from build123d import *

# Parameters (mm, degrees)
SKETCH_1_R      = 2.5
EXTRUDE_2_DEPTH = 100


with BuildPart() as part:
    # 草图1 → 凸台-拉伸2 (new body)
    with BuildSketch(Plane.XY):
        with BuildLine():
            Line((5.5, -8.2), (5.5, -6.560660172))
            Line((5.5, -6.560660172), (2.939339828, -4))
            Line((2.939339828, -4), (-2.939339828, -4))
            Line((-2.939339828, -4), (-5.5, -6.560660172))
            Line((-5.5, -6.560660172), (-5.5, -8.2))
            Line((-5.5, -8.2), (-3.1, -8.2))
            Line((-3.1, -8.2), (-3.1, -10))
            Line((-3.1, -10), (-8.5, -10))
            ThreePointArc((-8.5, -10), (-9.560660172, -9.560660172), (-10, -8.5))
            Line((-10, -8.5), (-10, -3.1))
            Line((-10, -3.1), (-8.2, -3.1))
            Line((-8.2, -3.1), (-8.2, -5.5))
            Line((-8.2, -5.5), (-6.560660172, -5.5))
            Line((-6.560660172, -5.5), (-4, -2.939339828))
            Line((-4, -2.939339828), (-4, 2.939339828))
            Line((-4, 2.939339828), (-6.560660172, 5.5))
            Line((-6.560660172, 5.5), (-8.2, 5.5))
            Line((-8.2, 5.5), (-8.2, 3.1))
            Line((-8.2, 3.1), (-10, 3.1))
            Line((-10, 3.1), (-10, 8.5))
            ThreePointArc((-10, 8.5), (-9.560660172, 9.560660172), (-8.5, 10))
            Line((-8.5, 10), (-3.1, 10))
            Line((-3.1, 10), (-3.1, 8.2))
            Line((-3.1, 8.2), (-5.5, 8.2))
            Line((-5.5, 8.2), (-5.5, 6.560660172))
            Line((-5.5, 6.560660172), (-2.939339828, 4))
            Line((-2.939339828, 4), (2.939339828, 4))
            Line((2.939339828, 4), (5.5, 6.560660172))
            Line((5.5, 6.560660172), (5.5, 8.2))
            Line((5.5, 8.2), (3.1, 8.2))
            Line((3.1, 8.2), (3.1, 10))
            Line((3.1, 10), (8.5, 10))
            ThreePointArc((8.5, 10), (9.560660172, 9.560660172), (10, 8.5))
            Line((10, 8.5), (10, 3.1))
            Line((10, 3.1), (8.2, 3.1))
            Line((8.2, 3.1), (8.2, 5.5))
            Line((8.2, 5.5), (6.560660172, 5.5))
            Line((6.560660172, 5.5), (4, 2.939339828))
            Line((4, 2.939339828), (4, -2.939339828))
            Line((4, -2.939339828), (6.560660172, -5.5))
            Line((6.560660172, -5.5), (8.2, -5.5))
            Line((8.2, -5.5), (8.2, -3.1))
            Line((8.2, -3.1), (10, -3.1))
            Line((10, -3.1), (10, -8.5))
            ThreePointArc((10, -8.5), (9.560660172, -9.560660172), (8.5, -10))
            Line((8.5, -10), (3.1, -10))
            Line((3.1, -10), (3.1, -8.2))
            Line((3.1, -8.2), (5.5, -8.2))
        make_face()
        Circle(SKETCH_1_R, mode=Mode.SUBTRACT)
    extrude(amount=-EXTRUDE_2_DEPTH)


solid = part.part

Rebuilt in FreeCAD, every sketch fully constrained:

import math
import FreeCAD as App
import Part
import Sketcher

V = App.Vector

doc = App.newDocument("Part")
body = doc.addObject("PartDesign::Body", "Body")

sketch1 = body.newObject("Sketcher::SketchObject", "Sketch")
sketch1.AttachmentSupport = (doc.getObject("XY_Plane"), [""])
sketch1.MapMode = "FlatFace"
sketch1.addGeometry([
    Part.LineSegment(V(5.5, -6.6, 0), V(5.5, -8.2, 0)),
    Part.LineSegment(V(5.5, -8.2, 0), V(3.1, -8.2, 0)),
    Part.LineSegment(V(3.1, -8.2, 0), V(3.1, -10, 0)),
    Part.LineSegment(V(3.1, -10, 0), V(8.5, -10, 0)),
    Part.ArcOfCircle(Part.Circle(V(8.5, -8.5, 0), V(0, 0, 1), 1.5), math.radians(-90), math.radians(0)),
    Part.LineSegment(V(10, -8.5, 0), V(10, -3.1, 0)),
    Part.LineSegment(V(10, -3.1, 0), V(8.2, -3.1, 0)),
    Part.LineSegment(V(8.2, -3.1, 0), V(8.2, -5.5, 0)),
    Part.LineSegment(V(8.2, -5.5, 0), V(6.6, -5.5, 0)),
    Part.LineSegment(V(6.6, -5.5, 0), V(4, -2.9, 0)),
    Part.LineSegment(V(4, -2.9, 0), V(4, 2.9, 0)),
    Part.LineSegment(V(4, 2.9, 0), V(6.6, 5.5, 0)),
    Part.LineSegment(V(6.6, 5.5, 0), V(8.2, 5.5, 0)),
    Part.LineSegment(V(8.2, 5.5, 0), V(8.2, 3.1, 0)),
    Part.LineSegment(V(8.2, 3.1, 0), V(10, 3.1, 0)),
    Part.LineSegment(V(10, 3.1, 0), V(10, 8.5, 0)),
    Part.ArcOfCircle(Part.Circle(V(8.5, 8.5, 0), V(0, 0, 1), 1.5), math.radians(0), math.radians(90)),
    Part.LineSegment(V(8.5, 10, 0), V(3.1, 10, 0)),
    Part.LineSegment(V(3.1, 10, 0), V(3.1, 8.2, 0)),
    Part.LineSegment(V(3.1, 8.2, 0), V(5.5, 8.2, 0)),
    Part.LineSegment(V(5.5, 8.2, 0), V(5.5, 6.6, 0)),
    Part.LineSegment(V(5.5, 6.6, 0), V(2.9, 4, 0)),
    Part.LineSegment(V(2.9, 4, 0), V(-2.9, 4, 0)),
    Part.LineSegment(V(-2.9, 4, 0), V(-5.5, 6.6, 0)),
    Part.LineSegment(V(-5.5, 6.6, 0), V(-5.5, 8.2, 0)),
    Part.LineSegment(V(-5.5, 8.2, 0), V(-3.1, 8.2, 0)),
    Part.LineSegment(V(-3.1, 8.2, 0), V(-3.1, 10, 0)),
    Part.LineSegment(V(-3.1, 10, 0), V(-8.5, 10, 0)),
    Part.ArcOfCircle(Part.Circle(V(-8.5, 8.5, 0), V(0, 0, 1), 1.5), math.radians(90), math.radians(180)),
    Part.LineSegment(V(-10, 8.5, 0), V(-10, 3.1, 0)),
    Part.LineSegment(V(-10, 3.1, 0), V(-8.2, 3.1, 0)),
    Part.LineSegment(V(-8.2, 3.1, 0), V(-8.2, 5.5, 0)),
    Part.LineSegment(V(-8.2, 5.5, 0), V(-6.6, 5.5, 0)),
    Part.LineSegment(V(-6.6, 5.5, 0), V(-4, 2.9, 0)),
    Part.LineSegment(V(-4, 2.9, 0), V(-4, -2.9, 0)),
    Part.LineSegment(V(-4, -2.9, 0), V(-6.6, -5.5, 0)),
    Part.LineSegment(V(-6.6, -5.5, 0), V(-8.2, -5.5, 0)),
    Part.LineSegment(V(-8.2, -5.5, 0), V(-8.2, -3.1, 0)),
    Part.LineSegment(V(-8.2, -3.1, 0), V(-10, -3.1, 0)),
    Part.LineSegment(V(-10, -3.1, 0), V(-10, -8.5, 0)),
    Part.ArcOfCircle(Part.Circle(V(-8.5, -8.5, 0), V(0, 0, 1), 1.5), math.radians(180), math.radians(270)),
    Part.LineSegment(V(-8.5, -10, 0), V(-3.1, -10, 0)),
    Part.LineSegment(V(-3.1, -10, 0), V(-3.1, -8.2, 0)),
    Part.LineSegment(V(-3.1, -8.2, 0), V(-5.5, -8.2, 0)),
    Part.LineSegment(V(-5.5, -8.2, 0), V(-5.5, -6.6, 0)),
    Part.LineSegment(V(-5.5, -6.6, 0), V(-2.9, -4, 0)),
    Part.LineSegment(V(-2.9, -4, 0), V(2.9, -4, 0)),
    Part.LineSegment(V(2.9, -4, 0), V(5.5, -6.6, 0)),
    Part.Circle(V(0, 0, 0), V(0, 0, 1), 2.5),
], False)
sketch1.addConstraint([
    Sketcher.Constraint("Coincident", 0, 2, 1, 1),
    Sketcher.Constraint("Coincident", 1, 2, 2, 1),
    Sketcher.Constraint("Coincident", 2, 2, 3, 1),
    Sketcher.Constraint("Tangent", 3, 2, 4, 1),
    Sketcher.Constraint("Tangent", 4, 2, 5, 1),
    Sketcher.Constraint("Coincident", 5, 2, 6, 1),
    Sketcher.Constraint("Coincident", 6, 2, 7, 1),
    Sketcher.Constraint("Coincident", 7, 2, 8, 1),
    Sketcher.Constraint("Coincident", 8, 2, 9, 1),
    Sketcher.Constraint("Coincident", 9, 2, 10, 1),
    Sketcher.Constraint("Coincident", 10, 2, 11, 1),
    Sketcher.Constraint("Coincident", 11, 2, 12, 1),
    Sketcher.Constraint("Coincident", 12, 2, 13, 1),
    Sketcher.Constraint("Coincident", 13, 2, 14, 1),
    Sketcher.Constraint("Coincident", 14, 2, 15, 1),
    Sketcher.Constraint("Tangent", 15, 2, 16, 1),
    Sketcher.Constraint("Tangent", 16, 2, 17, 1),
    Sketcher.Constraint("Coincident", 17, 2, 18, 1),
    Sketcher.Constraint("Coincident", 18, 2, 19, 1),
    Sketcher.Constraint("Coincident", 19, 2, 20, 1),
    Sketcher.Constraint("Coincident", 20, 2, 21, 1),
    Sketcher.Constraint("Coincident", 21, 2, 22, 1),
    Sketcher.Constraint("Coincident", 22, 2, 23, 1),
    Sketcher.Constraint("Coincident", 23, 2, 24, 1),
    Sketcher.Constraint("Coincident", 24, 2, 25, 1),
    Sketcher.Constraint("Coincident", 25, 2, 26, 1),
    Sketcher.Constraint("Coincident", 26, 2, 27, 1),
    Sketcher.Constraint("Tangent", 27, 2, 28, 1),
    Sketcher.Constraint("Tangent", 28, 2, 29, 1),
    Sketcher.Constraint("Coincident", 29, 2, 30, 1),
    Sketcher.Constraint("Coincident", 30, 2, 31, 1),
    Sketcher.Constraint("Coincident", 31, 2, 32, 1),
    Sketcher.Constraint("Coincident", 32, 2, 33, 1),
    Sketcher.Constraint("Coincident", 33, 2, 34, 1),
    Sketcher.Constraint("Coincident", 34, 2, 35, 1),
    Sketcher.Constraint("Coincident", 35, 2, 36, 1),
    Sketcher.Constraint("Coincident", 36, 2, 37, 1),
    Sketcher.Constraint("Coincident", 37, 2, 38, 1),
    Sketcher.Constraint("Coincident", 38, 2, 39, 1),
    Sketcher.Constraint("Tangent", 39, 2, 40, 1),
    Sketcher.Constraint("Tangent", 40, 2, 41, 1),
    Sketcher.Constraint("Coincident", 41, 2, 42, 1),
    Sketcher.Constraint("Coincident", 42, 2, 43, 1),
    Sketcher.Constraint("Coincident", 43, 2, 44, 1),
    Sketcher.Constraint("Coincident", 44, 2, 45, 1),
    Sketcher.Constraint("Coincident", 45, 2, 46, 1),
    Sketcher.Constraint("Coincident", 46, 2, 47, 1),
    Sketcher.Constraint("Coincident", 47, 2, 0, 1),
    Sketcher.Constraint("Vertical", 0),
    Sketcher.Constraint("Horizontal", 1),
    Sketcher.Constraint("Vertical", 2),
    Sketcher.Constraint("Horizontal", 3),
    Sketcher.Constraint("Vertical", 5),
    Sketcher.Constraint("Horizontal", 6),
    Sketcher.Constraint("Vertical", 7),
    Sketcher.Constraint("Horizontal", 8),
    Sketcher.Constraint("Vertical", 10),
    Sketcher.Constraint("Horizontal", 12),
    Sketcher.Constraint("Vertical", 13),
    Sketcher.Constraint("Horizontal", 14),
    Sketcher.Constraint("Vertical", 15),
    Sketcher.Constraint("Horizontal", 17),
    Sketcher.Constraint("Vertical", 18),
    Sketcher.Constraint("Horizontal", 19),
    Sketcher.Constraint("Vertical", 20),
    Sketcher.Constraint("Horizontal", 22),
    Sketcher.Constraint("Vertical", 24),
    Sketcher.Constraint("Horizontal", 25),
    Sketcher.Constraint("Vertical", 26),
    Sketcher.Constraint("Horizontal", 27),
    Sketcher.Constraint("Vertical", 29),
    Sketcher.Constraint("Horizontal", 30),
    Sketcher.Constraint("Vertical", 31),
    Sketcher.Constraint("Horizontal", 32),
    Sketcher.Constraint("Vertical", 34),
    Sketcher.Constraint("Horizontal", 36),
    Sketcher.Constraint("Vertical", 37),
    Sketcher.Constraint("Horizontal", 38),
    Sketcher.Constraint("Vertical", 39),
    Sketcher.Constraint("Horizontal", 41),
    Sketcher.Constraint("Vertical", 42),
    Sketcher.Constraint("Horizontal", 43),
    Sketcher.Constraint("Vertical", 44),
    Sketcher.Constraint("Horizontal", 46),
    Sketcher.Constraint("Coincident", 48, 3, -1, 1),
    Sketcher.Constraint("Equal", 4, 16),
    Sketcher.Constraint("Equal", 16, 28),
    Sketcher.Constraint("Equal", 28, 40),
    Sketcher.Constraint("Symmetric", 4, 3, 28, 3, -1, 1),
    Sketcher.Constraint("Symmetric", 16, 3, 40, 3, -1, 1),
    Sketcher.Constraint("Symmetric", 0, 2, 24, 2, -1, 1),
    Sketcher.Constraint("Symmetric", 6, 2, 30, 2, -1, 1),
    Sketcher.Constraint("Symmetric", 8, 2, 32, 2, -1, 1),
    Sketcher.Constraint("Symmetric", 9, 2, 33, 2, -1, 1),
    Sketcher.Constraint("Symmetric", 11, 2, 35, 2, -1, 1),
    Sketcher.Constraint("Symmetric", 13, 2, 37, 2, -1, 1),
    Sketcher.Constraint("Symmetric", 18, 2, 42, 2, -1, 1),
    Sketcher.Constraint("Symmetric", 20, 2, 44, 2, -1, 1),
    Sketcher.Constraint("Symmetric", 21, 2, 45, 2, -1, 1),
    Sketcher.Constraint("Symmetric", 16, 3, 28, 3, -2),
    Sketcher.Constraint("Symmetric", 20, 2, 23, 2, -2),
    Sketcher.Constraint("Symmetric", 18, 2, 25, 2, -2),
    Sketcher.Constraint("Symmetric", 13, 2, 30, 2, -2),
    Sketcher.Constraint("Symmetric", 11, 2, 32, 2, -2),
    Sketcher.Constraint("Perpendicular", 9, 11),
    Sketcher.Constraint("Parallel", 11, 21),
    Sketcher.Constraint("Perpendicular", 21, 23),
    Sketcher.Constraint("Perpendicular", 33, 35),
    Sketcher.Constraint("Perpendicular", 45, 47),
    Sketcher.Constraint("Horizontal", 10, 2, 33, 2),
    Sketcher.Constraint("Horizontal", 44, 2, 47, 2),
    Sketcher.Constraint("Vertical", 2, 2, 17, 2),
    Sketcher.Constraint("Equal", 36, 0),
    Sketcher.Constraint("Equal", 38, 2),
    Sketcher.Constraint("Equal", 41, 5),
    Sketcher.Constraint("Equal", 43, 7),
    Sketcher.Constraint("Equal", 46, 10),
    Sketcher.Constraint("Equal", 11, 21),
    Sketcher.Constraint("Diameter", 48, 5.0),
    Sketcher.Constraint("Radius", 4, 1.5),
    Sketcher.Constraint("DistanceX", 1, 2, 1, 1, 2.4),
    Sketcher.Constraint("DistanceX", 3, 1, 3, 2, 5.4),
    Sketcher.Constraint("DistanceX", 6, 2, 6, 1, 1.8),
    Sketcher.Constraint("DistanceY", 2, 2, -1, 1, 10.0),
    Sketcher.Constraint("DistanceX", -1, 1, 9, 2, 4.0),
    Sketcher.Constraint("DistanceX", 8, 2, 8, 1, 1.63934),
])
pad1 = body.newObject("PartDesign::Pad", "Pad")
pad1.Profile = sketch1
pad1.Length = 100
pad1.Reversed = True

doc.recompute()
